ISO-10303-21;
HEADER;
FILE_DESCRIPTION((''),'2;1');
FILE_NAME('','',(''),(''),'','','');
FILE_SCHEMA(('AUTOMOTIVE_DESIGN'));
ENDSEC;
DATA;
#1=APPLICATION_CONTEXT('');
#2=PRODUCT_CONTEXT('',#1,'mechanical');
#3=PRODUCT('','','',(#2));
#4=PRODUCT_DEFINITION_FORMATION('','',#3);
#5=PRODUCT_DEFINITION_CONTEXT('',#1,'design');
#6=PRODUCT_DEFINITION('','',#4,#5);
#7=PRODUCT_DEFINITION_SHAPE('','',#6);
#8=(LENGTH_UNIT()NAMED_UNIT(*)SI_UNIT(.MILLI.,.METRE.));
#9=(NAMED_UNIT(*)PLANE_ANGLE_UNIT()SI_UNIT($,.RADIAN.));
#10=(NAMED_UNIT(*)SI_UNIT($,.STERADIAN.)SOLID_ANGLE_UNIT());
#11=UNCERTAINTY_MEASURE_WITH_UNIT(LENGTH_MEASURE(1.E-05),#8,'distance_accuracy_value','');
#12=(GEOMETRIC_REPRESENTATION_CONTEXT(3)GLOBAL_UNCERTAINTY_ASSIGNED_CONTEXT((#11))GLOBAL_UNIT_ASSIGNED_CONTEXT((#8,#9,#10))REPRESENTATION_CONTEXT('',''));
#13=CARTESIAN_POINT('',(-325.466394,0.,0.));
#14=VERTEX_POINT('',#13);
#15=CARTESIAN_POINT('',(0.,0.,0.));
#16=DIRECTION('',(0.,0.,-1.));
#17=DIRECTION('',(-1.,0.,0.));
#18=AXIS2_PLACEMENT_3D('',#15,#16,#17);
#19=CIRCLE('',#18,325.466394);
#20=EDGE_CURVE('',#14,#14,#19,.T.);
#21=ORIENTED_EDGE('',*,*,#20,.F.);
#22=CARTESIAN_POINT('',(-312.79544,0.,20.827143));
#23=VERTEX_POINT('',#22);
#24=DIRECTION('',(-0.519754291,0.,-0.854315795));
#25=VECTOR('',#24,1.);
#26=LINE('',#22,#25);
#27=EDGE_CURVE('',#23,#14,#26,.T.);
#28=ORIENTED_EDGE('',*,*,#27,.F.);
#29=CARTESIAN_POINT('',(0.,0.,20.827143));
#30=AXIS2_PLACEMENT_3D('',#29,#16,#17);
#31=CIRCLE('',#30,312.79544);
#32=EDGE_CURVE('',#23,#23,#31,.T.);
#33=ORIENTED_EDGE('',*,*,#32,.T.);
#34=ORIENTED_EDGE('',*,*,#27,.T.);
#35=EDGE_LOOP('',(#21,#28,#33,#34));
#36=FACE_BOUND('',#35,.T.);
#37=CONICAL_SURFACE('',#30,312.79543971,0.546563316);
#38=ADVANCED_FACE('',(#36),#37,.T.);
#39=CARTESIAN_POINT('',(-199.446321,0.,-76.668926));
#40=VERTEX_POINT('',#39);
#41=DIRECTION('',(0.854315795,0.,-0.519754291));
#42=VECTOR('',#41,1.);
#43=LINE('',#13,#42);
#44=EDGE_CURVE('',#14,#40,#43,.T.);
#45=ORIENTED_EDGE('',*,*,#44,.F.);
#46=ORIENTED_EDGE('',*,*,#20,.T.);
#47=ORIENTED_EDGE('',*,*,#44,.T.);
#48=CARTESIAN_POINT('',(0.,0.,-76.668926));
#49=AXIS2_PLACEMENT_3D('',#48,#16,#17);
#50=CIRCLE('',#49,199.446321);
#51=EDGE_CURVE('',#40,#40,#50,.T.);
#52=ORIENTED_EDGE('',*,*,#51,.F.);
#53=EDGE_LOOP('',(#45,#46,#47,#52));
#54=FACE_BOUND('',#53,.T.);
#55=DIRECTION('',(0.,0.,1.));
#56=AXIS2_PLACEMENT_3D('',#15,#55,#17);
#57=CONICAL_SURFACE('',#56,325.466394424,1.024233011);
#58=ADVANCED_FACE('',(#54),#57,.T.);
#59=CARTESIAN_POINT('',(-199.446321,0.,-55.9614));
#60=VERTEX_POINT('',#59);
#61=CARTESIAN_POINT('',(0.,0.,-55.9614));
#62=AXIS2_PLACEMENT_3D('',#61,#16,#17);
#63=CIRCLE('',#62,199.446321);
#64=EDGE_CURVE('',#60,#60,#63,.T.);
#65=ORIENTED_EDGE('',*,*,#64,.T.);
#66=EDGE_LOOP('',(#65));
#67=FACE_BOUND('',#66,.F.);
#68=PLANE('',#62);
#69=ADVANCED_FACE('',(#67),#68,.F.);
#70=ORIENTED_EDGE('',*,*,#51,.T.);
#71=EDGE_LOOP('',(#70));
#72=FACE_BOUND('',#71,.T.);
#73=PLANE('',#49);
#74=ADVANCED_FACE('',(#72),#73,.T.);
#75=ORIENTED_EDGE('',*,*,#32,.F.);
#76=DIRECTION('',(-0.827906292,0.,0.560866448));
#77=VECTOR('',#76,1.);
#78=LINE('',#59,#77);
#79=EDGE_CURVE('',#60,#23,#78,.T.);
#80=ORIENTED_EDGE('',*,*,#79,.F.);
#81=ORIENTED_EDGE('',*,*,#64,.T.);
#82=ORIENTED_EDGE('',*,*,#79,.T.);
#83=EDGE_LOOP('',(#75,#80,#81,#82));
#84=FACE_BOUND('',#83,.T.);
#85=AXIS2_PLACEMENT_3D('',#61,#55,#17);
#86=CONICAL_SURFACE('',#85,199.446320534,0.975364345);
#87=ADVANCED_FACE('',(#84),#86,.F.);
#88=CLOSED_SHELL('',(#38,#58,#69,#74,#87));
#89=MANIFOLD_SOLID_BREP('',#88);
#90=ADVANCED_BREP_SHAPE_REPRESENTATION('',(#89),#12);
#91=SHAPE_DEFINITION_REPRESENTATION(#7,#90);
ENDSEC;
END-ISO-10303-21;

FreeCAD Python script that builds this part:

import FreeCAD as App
import Part
import Sketcher

V = App.Vector
Q = App.Units.Quantity

doc = App.newDocument("Part")
body = doc.addObject("PartDesign::Body", "Body")

# Sketch on XZ plane
sketch1 = doc.addObject("Sketcher::SketchObject", "Sketch")
body.addObject(sketch1)
sketch1.AttachmentSupport = (doc.XZ_Plane, [""])
sketch1.MapMode = "FlatFace"
sketch1.addGeometry(Part.LineSegment(V(-199, -77, 0), V(0, -77, 0)), False)
sketch1.addGeometry(Part.LineSegment(V(0, -77, 0), V(0, -56, 0)), False)
sketch1.addGeometry(Part.LineSegment(V(0, -56, 0), V(-199, -56, 0)), False)
sketch1.addGeometry(Part.LineSegment(V(-199, -56, 0), V(-313, 21, 0)), False)
sketch1.addGeometry(Part.LineSegment(V(-313, 21, 0), V(-325, 0, 0)), False)
sketch1.addGeometry(Part.LineSegment(V(-325, 0, 0), V(-199, -77, 0)), False)
sketch1.addConstraint(Sketcher.Constraint("Coincident", 0, 2, 1, 1))
sketch1.addConstraint(Sketcher.Constraint("Coincident", 1, 2, 2, 1))
sketch1.addConstraint(Sketcher.Constraint("Coincident", 2, 2, 3, 1))
sketch1.addConstraint(Sketcher.Constraint("Coincident", 3, 2, 4, 1))
sketch1.addConstraint(Sketcher.Constraint("Coincident", 4, 2, 5, 1))
sketch1.addConstraint(Sketcher.Constraint("Coincident", 5, 2, 0, 1))
sketch1.addConstraint(Sketcher.Constraint("Horizontal", 0))
sketch1.addConstraint(Sketcher.Constraint("Vertical", 1))
sketch1.addConstraint(Sketcher.Constraint("Horizontal", 2))
sketch1.addConstraint(Sketcher.Constraint("PointOnObject", 0, 2, -2))
sketch1.addConstraint(Sketcher.Constraint("PointOnObject", 4, 2, -1))
sketch1.addConstraint(Sketcher.Constraint("Perpendicular", 4, 5))
sketch1.addConstraint(Sketcher.Constraint("Vertical", 2, 2, 5, 2))
sketch1.addConstraint(Sketcher.Constraint("DistanceX", 0, 1, 0, 2, Q("199.446321 mm")))
sketch1.addConstraint(Sketcher.Constraint("DistanceY", 1, 2, -1, 1, Q("55.9614 mm")))
sketch1.addConstraint(Sketcher.Constraint("Distance", 4, Q("24.37874 mm")))
sketch1.addConstraint(Sketcher.Constraint("DistanceY", 1, 1, 1, 2, Q("20.707525 mm")))
sketch1.addConstraint(Sketcher.Constraint("DistanceX", 3, 2, -1, 1, Q("312.79544 mm")))
revolution = doc.addObject("PartDesign::Revolution", "Revolution")
body.addObject(revolution)
revolution.Profile = sketch1
revolution.ReferenceAxis = (sketch1, ["V_Axis"])
revolution.Angle = 360

doc.recompute()
